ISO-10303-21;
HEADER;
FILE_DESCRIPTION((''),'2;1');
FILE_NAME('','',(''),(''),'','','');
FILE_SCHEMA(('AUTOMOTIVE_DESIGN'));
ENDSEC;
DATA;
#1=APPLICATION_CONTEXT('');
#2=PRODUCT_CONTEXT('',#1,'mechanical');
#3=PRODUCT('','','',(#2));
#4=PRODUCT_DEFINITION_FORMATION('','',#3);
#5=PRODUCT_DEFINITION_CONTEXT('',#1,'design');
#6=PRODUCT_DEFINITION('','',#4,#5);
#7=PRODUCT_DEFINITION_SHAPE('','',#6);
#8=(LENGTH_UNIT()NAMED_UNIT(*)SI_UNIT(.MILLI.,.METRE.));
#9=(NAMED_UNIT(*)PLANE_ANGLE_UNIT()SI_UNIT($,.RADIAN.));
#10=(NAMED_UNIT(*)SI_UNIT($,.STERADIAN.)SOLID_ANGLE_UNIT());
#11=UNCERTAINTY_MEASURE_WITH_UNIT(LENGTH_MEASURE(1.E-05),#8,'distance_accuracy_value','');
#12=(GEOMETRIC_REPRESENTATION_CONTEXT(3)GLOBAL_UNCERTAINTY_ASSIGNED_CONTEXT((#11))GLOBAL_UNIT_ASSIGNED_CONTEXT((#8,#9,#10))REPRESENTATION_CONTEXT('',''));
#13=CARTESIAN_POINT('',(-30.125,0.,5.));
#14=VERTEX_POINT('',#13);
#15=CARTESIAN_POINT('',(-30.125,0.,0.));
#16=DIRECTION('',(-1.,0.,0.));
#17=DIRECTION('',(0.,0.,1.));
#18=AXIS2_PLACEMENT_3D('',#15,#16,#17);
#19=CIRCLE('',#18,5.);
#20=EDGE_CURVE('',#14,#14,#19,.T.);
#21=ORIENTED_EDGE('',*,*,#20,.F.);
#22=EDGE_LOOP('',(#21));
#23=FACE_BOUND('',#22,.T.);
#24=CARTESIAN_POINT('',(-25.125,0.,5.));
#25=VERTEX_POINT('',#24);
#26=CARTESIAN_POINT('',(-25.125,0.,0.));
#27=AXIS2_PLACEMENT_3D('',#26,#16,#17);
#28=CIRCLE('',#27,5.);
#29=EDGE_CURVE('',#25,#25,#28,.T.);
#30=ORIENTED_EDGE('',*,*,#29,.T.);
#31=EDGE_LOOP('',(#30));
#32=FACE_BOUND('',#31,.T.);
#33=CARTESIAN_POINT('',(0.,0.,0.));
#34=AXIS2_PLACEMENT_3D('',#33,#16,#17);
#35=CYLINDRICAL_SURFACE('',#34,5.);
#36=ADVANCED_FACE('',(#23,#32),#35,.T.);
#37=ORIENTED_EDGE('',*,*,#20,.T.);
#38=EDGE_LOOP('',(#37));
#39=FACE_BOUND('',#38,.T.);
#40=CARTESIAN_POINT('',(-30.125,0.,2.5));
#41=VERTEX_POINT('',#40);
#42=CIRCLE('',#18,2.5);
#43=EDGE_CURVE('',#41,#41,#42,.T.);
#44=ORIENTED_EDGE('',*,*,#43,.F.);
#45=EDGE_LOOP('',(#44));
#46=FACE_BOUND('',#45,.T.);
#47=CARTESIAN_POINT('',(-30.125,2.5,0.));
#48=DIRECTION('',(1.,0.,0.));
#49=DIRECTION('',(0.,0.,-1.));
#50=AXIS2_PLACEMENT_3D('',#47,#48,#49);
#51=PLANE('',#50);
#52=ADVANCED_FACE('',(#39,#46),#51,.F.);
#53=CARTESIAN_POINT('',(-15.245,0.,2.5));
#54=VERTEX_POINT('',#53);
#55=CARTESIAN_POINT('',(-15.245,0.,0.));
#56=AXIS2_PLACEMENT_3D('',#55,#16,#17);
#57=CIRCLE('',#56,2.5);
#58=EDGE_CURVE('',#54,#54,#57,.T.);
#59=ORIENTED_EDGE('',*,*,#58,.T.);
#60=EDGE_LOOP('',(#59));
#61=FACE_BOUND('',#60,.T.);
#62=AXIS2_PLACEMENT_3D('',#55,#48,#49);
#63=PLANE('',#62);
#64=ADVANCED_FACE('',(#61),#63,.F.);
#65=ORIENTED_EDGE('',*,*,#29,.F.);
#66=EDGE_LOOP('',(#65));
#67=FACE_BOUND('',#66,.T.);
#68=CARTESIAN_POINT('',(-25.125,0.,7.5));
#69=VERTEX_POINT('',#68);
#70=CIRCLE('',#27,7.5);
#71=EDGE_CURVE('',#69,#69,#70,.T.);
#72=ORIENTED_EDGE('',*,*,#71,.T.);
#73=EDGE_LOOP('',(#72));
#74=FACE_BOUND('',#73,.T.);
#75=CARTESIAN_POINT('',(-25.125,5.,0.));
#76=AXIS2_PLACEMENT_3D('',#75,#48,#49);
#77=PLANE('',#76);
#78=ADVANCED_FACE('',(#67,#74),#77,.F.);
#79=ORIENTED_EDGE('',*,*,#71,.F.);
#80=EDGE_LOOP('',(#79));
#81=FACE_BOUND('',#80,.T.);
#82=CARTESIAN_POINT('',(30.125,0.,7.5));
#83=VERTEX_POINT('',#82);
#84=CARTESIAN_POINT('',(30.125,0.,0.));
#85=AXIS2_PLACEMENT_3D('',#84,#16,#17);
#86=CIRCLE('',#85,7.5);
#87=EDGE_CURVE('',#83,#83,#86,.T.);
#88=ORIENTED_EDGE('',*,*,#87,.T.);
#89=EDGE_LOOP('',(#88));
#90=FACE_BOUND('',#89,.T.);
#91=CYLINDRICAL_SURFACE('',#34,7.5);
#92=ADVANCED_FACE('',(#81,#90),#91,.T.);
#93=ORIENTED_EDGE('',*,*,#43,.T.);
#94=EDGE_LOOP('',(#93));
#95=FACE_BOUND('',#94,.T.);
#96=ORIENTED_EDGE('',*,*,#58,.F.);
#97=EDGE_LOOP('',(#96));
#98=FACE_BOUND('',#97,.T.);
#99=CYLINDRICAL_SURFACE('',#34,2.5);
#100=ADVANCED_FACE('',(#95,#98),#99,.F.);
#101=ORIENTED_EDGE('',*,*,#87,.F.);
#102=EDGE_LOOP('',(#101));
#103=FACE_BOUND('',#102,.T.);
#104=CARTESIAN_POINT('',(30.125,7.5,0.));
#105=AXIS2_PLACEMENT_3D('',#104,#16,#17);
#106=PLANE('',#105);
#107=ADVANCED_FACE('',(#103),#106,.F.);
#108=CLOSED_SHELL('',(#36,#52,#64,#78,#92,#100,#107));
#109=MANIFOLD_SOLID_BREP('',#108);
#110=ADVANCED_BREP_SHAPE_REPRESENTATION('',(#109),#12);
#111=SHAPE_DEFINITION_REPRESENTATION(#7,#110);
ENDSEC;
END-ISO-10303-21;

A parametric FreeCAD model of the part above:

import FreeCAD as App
import Part
import Sketcher

V = App.Vector
Q = App.Units.Quantity


def add_polygon(sketch, points):
    """Adds a closed chain of lines whose ends are joined by coincident constraints."""
    first, n = sketch.GeometryCount, len(points)
    for a, b in zip(points, points[1:] + points[:1]):
        sketch.addGeometry(Part.LineSegment(App.Vector(*a, 0), App.Vector(*b, 0)), False)
    for i in range(n):
        sketch.addConstraint(Sketcher.Constraint("Coincident", first + i, 2, first + (i + 1) % n, 1))

doc = App.newDocument("Part")
body = doc.addObject("PartDesign::Body", "Body")

# Sketch on XY plane
sketch1 = body.newObject("Sketcher::SketchObject", "Sketch")
sketch1.AttachmentSupport = (doc.getObject("XY_Plane"), [""])
sketch1.MapMode = "FlatFace"
add_polygon(sketch1, [(-15.245, 2.5), (-15.245, 0), (30.125, 0), (30.125, 7.5), (-25.125, 7.5), (-25.125, 5), (-30.125, 5), (-30.125, 2.5)])  # lines 0-7
sketch1.addConstraint([
    Sketcher.Constraint("Vertical", 0),
    Sketcher.Constraint("Horizontal", 1),
    Sketcher.Constraint("Vertical", 2),
    Sketcher.Constraint("Horizontal", 3),
    Sketcher.Constraint("Vertical", 4),
    Sketcher.Constraint("Horizontal", 5),
    Sketcher.Constraint("Vertical", 6),
    Sketcher.Constraint("Horizontal", 7),
    Sketcher.Constraint("PointOnObject", 0, 2, -1),
    Sketcher.Constraint("Equal", 0, 4),
    Sketcher.Constraint("Equal", 4, 6),
    Sketcher.Constraint("DistanceX", 5, 2, 5, 1, Q("5 mm")),
    Sketcher.Constraint("DistanceY", 0, 2, 0, 1, Q("2.5 mm")),
    Sketcher.Constraint("DistanceX", 1, 1, 1, 2, Q("45.37 mm")),
    Sketcher.Constraint("DistanceX", 3, 2, 3, 1, Q("55.25 mm")),
    Sketcher.Constraint("DistanceX", 0, 2, -1, 1, Q("15.245 mm")),
])
revolution = body.newObject("PartDesign::Revolution", "Revolution")
revolution.Profile = sketch1
revolution.ReferenceAxis = (sketch1, ["H_Axis"])
revolution.Angle = 360

doc.recompute()
